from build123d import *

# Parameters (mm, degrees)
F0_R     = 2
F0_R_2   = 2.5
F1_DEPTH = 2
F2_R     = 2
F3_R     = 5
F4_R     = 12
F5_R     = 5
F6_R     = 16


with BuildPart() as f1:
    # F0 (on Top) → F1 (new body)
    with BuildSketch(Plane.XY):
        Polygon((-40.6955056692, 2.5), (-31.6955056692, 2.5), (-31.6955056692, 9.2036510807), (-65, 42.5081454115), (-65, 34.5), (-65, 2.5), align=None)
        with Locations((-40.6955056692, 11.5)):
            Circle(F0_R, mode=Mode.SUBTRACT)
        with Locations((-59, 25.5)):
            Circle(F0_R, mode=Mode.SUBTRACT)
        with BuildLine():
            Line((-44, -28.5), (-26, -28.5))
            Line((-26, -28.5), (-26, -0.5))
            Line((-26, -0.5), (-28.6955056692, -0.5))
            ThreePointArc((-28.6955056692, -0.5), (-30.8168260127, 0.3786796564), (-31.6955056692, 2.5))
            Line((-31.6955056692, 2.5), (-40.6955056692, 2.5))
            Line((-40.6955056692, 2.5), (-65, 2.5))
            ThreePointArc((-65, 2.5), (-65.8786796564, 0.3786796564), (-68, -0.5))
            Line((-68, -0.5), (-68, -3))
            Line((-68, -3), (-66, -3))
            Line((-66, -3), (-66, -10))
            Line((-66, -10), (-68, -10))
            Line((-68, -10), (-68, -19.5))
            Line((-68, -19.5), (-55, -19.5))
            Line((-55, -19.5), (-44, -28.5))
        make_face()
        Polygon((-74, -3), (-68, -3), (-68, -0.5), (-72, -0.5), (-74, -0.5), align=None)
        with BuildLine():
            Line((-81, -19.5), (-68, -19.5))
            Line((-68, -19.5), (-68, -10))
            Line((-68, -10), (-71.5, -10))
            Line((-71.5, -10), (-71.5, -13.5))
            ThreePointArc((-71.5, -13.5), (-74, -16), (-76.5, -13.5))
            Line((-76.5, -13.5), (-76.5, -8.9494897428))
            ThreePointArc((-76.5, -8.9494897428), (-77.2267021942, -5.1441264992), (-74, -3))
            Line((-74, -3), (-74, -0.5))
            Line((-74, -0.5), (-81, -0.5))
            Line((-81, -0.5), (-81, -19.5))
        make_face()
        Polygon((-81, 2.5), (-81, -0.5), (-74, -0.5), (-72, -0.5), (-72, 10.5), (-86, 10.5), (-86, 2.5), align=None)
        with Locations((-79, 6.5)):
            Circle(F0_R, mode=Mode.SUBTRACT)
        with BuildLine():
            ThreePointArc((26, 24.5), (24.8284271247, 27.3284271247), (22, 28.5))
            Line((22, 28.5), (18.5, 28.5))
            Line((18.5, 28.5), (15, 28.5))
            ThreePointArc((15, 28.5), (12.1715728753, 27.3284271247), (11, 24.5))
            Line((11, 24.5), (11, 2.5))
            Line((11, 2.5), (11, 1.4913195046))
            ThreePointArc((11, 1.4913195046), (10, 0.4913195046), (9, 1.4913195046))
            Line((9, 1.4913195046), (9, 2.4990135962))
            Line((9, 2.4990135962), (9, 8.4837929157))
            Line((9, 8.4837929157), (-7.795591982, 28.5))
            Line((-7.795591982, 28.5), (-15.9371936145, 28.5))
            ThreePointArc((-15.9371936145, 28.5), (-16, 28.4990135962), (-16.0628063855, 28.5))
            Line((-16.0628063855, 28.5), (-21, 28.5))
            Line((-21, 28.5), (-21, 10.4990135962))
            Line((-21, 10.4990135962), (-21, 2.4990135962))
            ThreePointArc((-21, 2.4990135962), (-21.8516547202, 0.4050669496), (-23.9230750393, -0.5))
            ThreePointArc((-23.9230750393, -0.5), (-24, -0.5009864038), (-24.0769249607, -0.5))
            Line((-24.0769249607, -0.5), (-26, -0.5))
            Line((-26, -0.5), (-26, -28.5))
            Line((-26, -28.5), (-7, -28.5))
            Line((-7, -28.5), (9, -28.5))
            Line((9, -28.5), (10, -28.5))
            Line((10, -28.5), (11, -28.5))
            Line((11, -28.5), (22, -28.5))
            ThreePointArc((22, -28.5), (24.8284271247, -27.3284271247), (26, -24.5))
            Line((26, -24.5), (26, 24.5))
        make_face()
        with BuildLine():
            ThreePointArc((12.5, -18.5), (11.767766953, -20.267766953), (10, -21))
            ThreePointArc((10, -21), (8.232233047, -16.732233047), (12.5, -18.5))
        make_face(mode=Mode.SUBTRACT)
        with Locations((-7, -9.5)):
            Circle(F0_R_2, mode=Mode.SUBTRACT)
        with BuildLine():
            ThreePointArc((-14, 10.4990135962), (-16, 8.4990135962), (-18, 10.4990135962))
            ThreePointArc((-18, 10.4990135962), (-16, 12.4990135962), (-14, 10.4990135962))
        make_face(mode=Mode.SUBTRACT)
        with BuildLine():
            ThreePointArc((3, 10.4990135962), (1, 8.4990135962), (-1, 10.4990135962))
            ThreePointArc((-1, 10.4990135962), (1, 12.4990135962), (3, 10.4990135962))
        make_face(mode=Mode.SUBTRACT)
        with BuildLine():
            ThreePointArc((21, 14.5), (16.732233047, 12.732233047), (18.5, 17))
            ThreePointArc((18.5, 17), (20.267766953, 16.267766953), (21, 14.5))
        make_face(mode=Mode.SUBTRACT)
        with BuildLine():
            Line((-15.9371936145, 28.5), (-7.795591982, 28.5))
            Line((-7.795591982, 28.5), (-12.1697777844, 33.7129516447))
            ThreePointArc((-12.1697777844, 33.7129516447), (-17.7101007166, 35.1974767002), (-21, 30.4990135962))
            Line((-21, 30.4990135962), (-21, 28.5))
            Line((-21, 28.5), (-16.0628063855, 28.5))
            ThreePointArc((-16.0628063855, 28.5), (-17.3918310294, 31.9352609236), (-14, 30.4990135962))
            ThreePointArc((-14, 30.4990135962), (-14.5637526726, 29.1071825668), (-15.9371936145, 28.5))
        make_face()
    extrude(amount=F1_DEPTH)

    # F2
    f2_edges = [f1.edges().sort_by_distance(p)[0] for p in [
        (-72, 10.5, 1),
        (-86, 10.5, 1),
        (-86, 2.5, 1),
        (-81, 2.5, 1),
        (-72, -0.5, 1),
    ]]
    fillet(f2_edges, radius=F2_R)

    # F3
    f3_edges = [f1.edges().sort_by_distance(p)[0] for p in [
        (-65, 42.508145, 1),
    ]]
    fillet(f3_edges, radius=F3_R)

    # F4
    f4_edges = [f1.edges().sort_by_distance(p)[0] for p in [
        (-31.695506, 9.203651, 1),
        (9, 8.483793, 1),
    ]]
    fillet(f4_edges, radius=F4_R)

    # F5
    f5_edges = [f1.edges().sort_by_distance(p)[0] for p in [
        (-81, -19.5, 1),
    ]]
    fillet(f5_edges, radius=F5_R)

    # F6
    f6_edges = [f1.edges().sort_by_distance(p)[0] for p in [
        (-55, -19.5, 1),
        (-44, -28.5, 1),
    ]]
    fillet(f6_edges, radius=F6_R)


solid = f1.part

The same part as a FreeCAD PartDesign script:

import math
import FreeCAD as App
import Part
import Sketcher
Q = App.Units.Quantity


def edges_at(feature, points):
    """Names of the edges that pass closest to the given points."""
    edges = feature.Shape.Edges
    near = lambda p: min(range(len(edges)), key=lambda i: edges[i].distToShape(Part.Vertex(*p))[0])
    return sorted({f"Edge{near(p) + 1}" for p in points})

doc = App.newDocument("Part")
body = doc.addObject("PartDesign::Body", "Body")

# Sketch on XY plane
sketch1 = body.newObject("Sketcher::SketchObject", "Sketch")
sketch1.AttachmentSupport = (doc.getObject("XY_Plane"), [""])
sketch1.MapMode = "FlatFace"
sketch1.addGeometry([
    Part.LineSegment(App.Vector(-31.7, 2.5, 0), App.Vector(-31.7, 9.2, 0)),  # 0
    Part.LineSegment(App.Vector(-31.7, 9.2, 0), App.Vector(-65, 42.51, 0)),  # 1
    Part.LineSegment(App.Vector(-65, 42.51, 0), App.Vector(-65, 2.5, 0)),  # 2
    Part.ArcOfCircle(Part.Circle(App.Vector(-68, 2.5, 0), App.Vector(0, 0, 1), 3), math.radians(-90), math.radians(0)),  # 3
    Part.LineSegment(App.Vector(-68, -0.5, 0), App.Vector(-72, -0.5, 0)),  # 4
    Part.LineSegment(App.Vector(-72, -0.5, 0), App.Vector(-72, 10.5, 0)),  # 5
    Part.LineSegment(App.Vector(-72, 10.5, 0), App.Vector(-86, 10.5, 0)),  # 6
    Part.LineSegment(App.Vector(-86, 10.5, 0), App.Vector(-86, 2.5, 0)),  # 7
    Part.LineSegment(App.Vector(-86, 2.5, 0), App.Vector(-81, 2.5, 0)),  # 8
    Part.LineSegment(App.Vector(-81, 2.5, 0), App.Vector(-81, -19.5, 0)),  # 9
    Part.LineSegment(App.Vector(-81, -19.5, 0), App.Vector(-55, -19.5, 0)),  # 10
    Part.LineSegment(App.Vector(-55, -19.5, 0), App.Vector(-44, -28.5, 0)),  # 11
    Part.LineSegment(App.Vector(-44, -28.5, 0), App.Vector(22, -28.5, 0)),  # 12
    Part.ArcOfCircle(Part.Circle(App.Vector(22, -24.5, 0), App.Vector(0, 0, 1), 4), math.radians(-90), math.radians(0)),  # 13
    Part.LineSegment(App.Vector(26, -24.5, 0), App.Vector(26, 24.5, 0)),  # 14
    Part.ArcOfCircle(Part.Circle(App.Vector(22, 24.5, 0), App.Vector(0, 0, 1), 4), math.radians(0), math.radians(90)),  # 15
    Part.LineSegment(App.Vector(22, 28.5, 0), App.Vector(15, 28.5, 0)),  # 16
    Part.ArcOfCircle(Part.Circle(App.Vector(15, 24.5, 0), App.Vector(0, 0, 1), 4), math.radians(90), math.radians(180)),  # 17
    Part.LineSegment(App.Vector(11, 24.5, 0), App.Vector(11, 1.49, 0)),  # 18
    Part.ArcOfCircle(Part.Circle(App.Vector(10, 1.49, 0), App.Vector(0, 0, 1), 1), math.radians(180), math.radians(360)),  # 19
    Part.LineSegment(App.Vector(9, 1.49, 0), App.Vector(9, 8.48, 0)),  # 20
    Part.LineSegment(App.Vector(9, 8.48, 0), App.Vector(-7.8, 28.5, 0)),  # 21
    Part.LineSegment(App.Vector(-7.8, 28.5, 0), App.Vector(-12.17, 33.71, 0)),  # 22
    Part.ArcOfCircle(Part.Circle(App.Vector(-16, 30.5, 0), App.Vector(0, 0, 1), 5), math.radians(40), math.radians(180)),  # 23
    Part.LineSegment(App.Vector(-21, 30.5, 0), App.Vector(-21, 2.5, 0)),  # 24
    Part.ArcOfCircle(Part.Circle(App.Vector(-24, 2.5, 0), App.Vector(0, 0, 1), 3), math.radians(-89), math.radians(0)),  # 25
    Part.ArcOfCircle(Part.Circle(App.Vector(-24, 2.5, 0), App.Vector(0, 0, 1), 3), math.radians(-91.47), math.radians(-88.53)),  # 26
    Part.LineSegment(App.Vector(-24.08, -0.5, 0), App.Vector(-28.7, -0.5, 0)),  # 27
    Part.ArcOfCircle(Part.Circle(App.Vector(-28.7, 2.5, 0), App.Vector(0, 0, 1), 3), math.radians(180), math.radians(270)),  # 28
    Part.ArcOfCircle(Part.Circle(App.Vector(-16, 30.5, 0), App.Vector(0, 0, 1), 2), math.radians(-91.8), math.radians(-88.2)),  # 29
    Part.ArcOfCircle(Part.Circle(App.Vector(-16, 30.5, 0), App.Vector(0, 0, 1), 2), math.radians(0), math.radians(268)),  # 30
    Part.ArcOfCircle(Part.Circle(App.Vector(-16, 30.5, 0), App.Vector(0, 0, 1), 2), math.radians(-88), math.radians(0)),  # 31
    Part.LineSegment(App.Vector(-74, -3, 0), App.Vector(-66, -3, 0)),  # 32
    Part.LineSegment(App.Vector(-66, -3, 0), App.Vector(-66, -10, 0)),  # 33
    Part.LineSegment(App.Vector(-66, -10, 0), App.Vector(-71.5, -10, 0)),  # 34
    Part.LineSegment(App.Vector(-71.5, -10, 0), App.Vector(-71.5, -13.5, 0)),  # 35
    Part.ArcOfCircle(Part.Circle(App.Vector(-74, -13.5, 0), App.Vector(0, 0, 1), 2.5), math.radians(180), math.radians(360)),  # 36
    Part.LineSegment(App.Vector(-76.5, -13.5, 0), App.Vector(-76.5, -8.95, 0)),  # 37
    Part.ArcOfCircle(Part.Circle(App.Vector(-74, -6.5, 0), App.Vector(0, 0, 1), 3.5), math.radians(90), math.radians(224)),  # 38
    Part.Circle(App.Vector(-7, -9.5, 0), App.Vector(0, 0, 1), 2.5),  # 39
    Part.ArcOfCircle(Part.Circle(App.Vector(10, -18.5, 0), App.Vector(0, 0, 1), 2.5), math.radians(0), math.radians(270)),  # 40
    Part.ArcOfCircle(Part.Circle(App.Vector(10, -18.5, 0), App.Vector(0, 0, 1), 2.5), math.radians(-90), math.radians(0)),  # 41
    Part.Circle(App.Vector(-79, 6.5, 0), App.Vector(0, 0, 1), 2),  # 42
    Part.Circle(App.Vector(-40.7, 11.5, 0), App.Vector(0, 0, 1), 2),  # 43
    Part.Circle(App.Vector(-59, 25.5, 0), App.Vector(0, 0, 1), 2),  # 44
    Part.Circle(App.Vector(-16, 10.5, 0), App.Vector(0, 0, 1), 2),  # 45
    Part.Circle(App.Vector(1, 10.5, 0), App.Vector(0, 0, 1), 2),  # 46
    Part.ArcOfCircle(Part.Circle(App.Vector(18.5, 14.5, 0), App.Vector(0, 0, 1), 2.5), math.radians(0), math.radians(90)),  # 47
    Part.ArcOfCircle(Part.Circle(App.Vector(18.5, 14.5, 0), App.Vector(0, 0, 1), 2.5), math.radians(90), math.radians(360)),  # 48
], False)
sketch1.addConstraint([
    Sketcher.Constraint("Coincident", 0, 2, 1, 1),
    Sketcher.Constraint("Coincident", 1, 2, 2, 1),
    Sketcher.Constraint("Tangent", 2, 2, 3, 2),
    Sketcher.Constraint("Tangent", 3, 1, 4, 1),
    Sketcher.Constraint("Coincident", 4, 2, 5, 1),
    Sketcher.Constraint("Coincident", 5, 2, 6, 1),
    Sketcher.Constraint("Coincident", 6, 2, 7, 1),
    Sketcher.Constraint("Coincident", 7, 2, 8, 1),
    Sketcher.Constraint("Coincident", 8, 2, 9, 1),
    Sketcher.Constraint("Coincident", 9, 2, 10, 1),
    Sketcher.Constraint("Coincident", 10, 2, 11, 1),
    Sketcher.Constraint("Coincident", 11, 2, 12, 1),
    Sketcher.Constraint("Tangent", 12, 2, 13, 1),
    Sketcher.Constraint("Tangent", 13, 2, 14, 1),
    Sketcher.Constraint("Tangent", 14, 2, 15, 1),
    Sketcher.Constraint("Tangent", 15, 2, 16, 1),
    Sketcher.Constraint("Tangent", 16, 2, 17, 1),
    Sketcher.Constraint("Tangent", 17, 2, 18, 1),
    Sketcher.Constraint("Tangent", 18, 2, 19, 2),
    Sketcher.Constraint("Tangent", 19, 1, 20, 1),
    Sketcher.Constraint("Coincident", 20, 2, 21, 1),
    Sketcher.Constraint("Coincident", 21, 2, 22, 1),
    Sketcher.Constraint("Tangent", 22, 2, 23, 1),
    Sketcher.Constraint("Tangent", 23, 2, 24, 1),
    Sketcher.Constraint("Tangent", 24, 2, 25, 2),
    Sketcher.Constraint("Tangent", 25, 1, 26, 2),
    Sketcher.Constraint("Coincident", 26, 1, 27, 1),
    Sketcher.Constraint("Tangent", 27, 2, 28, 2),
    Sketcher.Constraint("Tangent", 28, 1, 0, 1),
    Sketcher.Constraint("Tangent", 29, 1, 30, 2),
    Sketcher.Constraint("Tangent", 30, 1, 31, 2),
    Sketcher.Constraint("Tangent", 31, 1, 29, 2),
    Sketcher.Constraint("Coincident", 32, 2, 33, 1),
    Sketcher.Constraint("Coincident", 33, 2, 34, 1),
    Sketcher.Constraint("Coincident", 34, 2, 35, 1),
    Sketcher.Constraint("Tangent", 35, 2, 36, 2),
    Sketcher.Constraint("Tangent", 36, 1, 37, 1),
    Sketcher.Constraint("Coincident", 37, 2, 38, 2),
    Sketcher.Constraint("Tangent", 38, 1, 32, 1),
    Sketcher.Constraint("Tangent", 40, 1, 41, 2),
    Sketcher.Constraint("Coincident", 41, 1, 40, 2),
    Sketcher.Constraint("Tangent", 47, 1, 48, 2),
    Sketcher.Constraint("Coincident", 48, 1, 47, 2),
    Sketcher.Constraint("Vertical", 0),
    Sketcher.Constraint("Vertical", 2),
    Sketcher.Constraint("Horizontal", 4),
    Sketcher.Constraint("Vertical", 5),
    Sketcher.Constraint("Horizontal", 6),
    Sketcher.Constraint("Vertical", 7),
    Sketcher.Constraint("Horizontal", 8),
    Sketcher.Constraint("Vertical", 9),
    Sketcher.Constraint("Horizontal", 10),
    Sketcher.Constraint("Horizontal", 12),
    Sketcher.Constraint("Vertical", 14),
    Sketcher.Constraint("Horizontal", 16),
    Sketcher.Constraint("Vertical", 18),
    Sketcher.Constraint("Vertical", 20),
    Sketcher.Constraint("Vertical", 24),
    Sketcher.Constraint("Horizontal", 27),
    Sketcher.Constraint("Horizontal", 32),
    Sketcher.Constraint("Vertical", 33),
    Sketcher.Constraint("Horizontal", 34),
    Sketcher.Constraint("Vertical", 35),
    Sketcher.Constraint("Vertical", 37),
    Sketcher.Constraint("Coincident", 29, 3, 23, 3),
    Sketcher.Constraint("Equal", 13, 15),
    Sketcher.Constraint("Equal", 15, 17),
    Sketcher.Constraint("Equal", 3, 25),
    Sketcher.Constraint("Equal", 25, 26),
    Sketcher.Constraint("Equal", 26, 28),
    Sketcher.Constraint("Equal", 36, 39),
    Sketcher.Constraint("Equal", 39, 40),
    Sketcher.Constraint("Equal", 31, 42),
    Sketcher.Constraint("Equal", 42, 43),
    Sketcher.Constraint("Equal", 43, 44),
    Sketcher.Constraint("Equal", 44, 45),
    Sketcher.Constraint("Equal", 45, 46),
    Sketcher.Constraint("Equal", 41, 47),
    Sketcher.Constraint("Parallel", 21, 22),
    Sketcher.Constraint("Horizontal", 3, 3, 28, 3),
    Sketcher.Constraint("Horizontal", 45, 3, 46, 3),
    Sketcher.Constraint("Horizontal", 2, 2, 7, 2),
    Sketcher.Constraint("Horizontal", 16, 2, 21, 2),
    Sketcher.Constraint("Horizontal", 4, 2, 25, 1),
    Sketcher.Constraint("Horizontal", 21, 2, 29, 1),
    Sketcher.Constraint("Horizontal", 23, 2, 30, 1),
    Sketcher.Constraint("Horizontal", 29, 1, 31, 1),
    Sketcher.Constraint("Horizontal", 41, 3, 40, 1),
    Sketcher.Constraint("Horizontal", 48, 3, 47, 1),
    Sketcher.Constraint("Vertical", 36, 3, 38, 3),
    Sketcher.Constraint("Vertical", 19, 3, 40, 3),
    Sketcher.Constraint("Vertical", 31, 3, 45, 3),
    Sketcher.Constraint("Vertical", 40, 3, 41, 1),
    Sketcher.Constraint("Vertical", 47, 3, 48, 1),
    Sketcher.Constraint("Equal", 32, 7),
    Sketcher.Constraint("Equal", 16, 33),
    Sketcher.Constraint("Diameter", 39, Q("5 mm")),
    Sketcher.Constraint("Diameter", 42, Q("4 mm")),
    Sketcher.Constraint("Radius", 3, Q("3 mm")),
    Sketcher.Constraint("Radius", 13, Q("4 mm")),
    Sketcher.Constraint("Radius", 19, Q("1 mm")),
    Sketcher.Constraint("Radius", 23, Q("5 mm")),
    Sketcher.Constraint("Radius", 38, Q("3.5 mm")),
    Sketcher.Constraint("DistanceX", 4, 2, 4, 1, Q("4 mm")),
    Sketcher.Constraint("DistanceX", 6, 2, 6, 1, Q("14 mm")),
    Sketcher.Constraint("DistanceX", 8, 1, 8, 2, Q("5 mm")),
    Sketcher.Constraint("DistanceX", 10, 1, 10, 2, Q("26 mm")),
    Sketcher.Constraint("DistanceX", 12, 1, 12, 2, Q("66 mm")),
    Sketcher.Constraint("DistanceX", 16, 2, 16, 1, Q("7 mm")),
    Sketcher.Constraint("DistanceX", 32, 1, 32, 2, Q("8 mm")),
    Sketcher.Constraint("DistanceY", 9, 2, 9, 1, Q("22 mm")),
    Sketcher.Constraint("DistanceY", 14, 1, 14, 2, Q("49 mm")),
    Sketcher.Constraint("DistanceY", 24, 2, 24, 1, Q("28 mm")),
    Sketcher.Constraint("Angle", 1, Q("135 deg")),
    Sketcher.Constraint("Angle", 21, Q("130 deg")),
    Sketcher.Constraint("DistanceY", 35, 2, 35, 1, Q("3.5 mm")),
    Sketcher.Constraint("DistanceX", 3, 3, -1, 1, Q("68 mm")),
    Sketcher.Constraint("DistanceX", -1, 1, 13, 3, Q("22 mm")),
    Sketcher.Constraint("DistanceX", 23, 3, -1, 1, Q("16 mm")),
    Sketcher.Constraint("DistanceX", 36, 3, -1, 1, Q("74 mm")),
    Sketcher.Constraint("DistanceX", 39, 3, -1, 1, Q("7 mm")),
    Sketcher.Constraint("DistanceX", 42, 3, -1, 1, Q("79 mm")),
    Sketcher.Constraint("DistanceX", 44, 3, -1, 1, Q("59 mm")),
    Sketcher.Constraint("DistanceX", -1, 1, 46, 3, Q("1 mm")),
    Sketcher.Constraint("DistanceY", 32, 2, -1, 1, Q("3 mm")),
    Sketcher.Constraint("DistanceY", 41, 1, -1, 1, Q("21 mm")),
    Sketcher.Constraint("DistanceX", -1, 1, 47, 1, Q("21 mm")),
    Sketcher.Constraint("DistanceY", -1, 1, 48, 1, Q("17 mm")),
    Sketcher.Constraint("DistanceY", -1, 1, 3, 3, Q("2.5 mm")),
    Sketcher.Constraint("DistanceY", 13, 3, -1, 1, Q("24.5 mm")),
    Sketcher.Constraint("DistanceY", 39, 3, -1, 1, Q("9.5 mm")),
    Sketcher.Constraint("DistanceY", -1, 1, 42, 3, Q("6.5 mm")),
    Sketcher.Constraint("DistanceY", -1, 1, 43, 3, Q("11.5 mm")),
    Sketcher.Constraint("DistanceY", -1, 1, 44, 3, Q("25.5 mm")),
    Sketcher.Constraint("DistanceX", 27, 2, 27, 1, Q("4.618581 mm")),
    Sketcher.Constraint("DistanceY", 0, 1, 0, 2, Q("6.703651 mm")),
    Sketcher.Constraint("DistanceY", 18, 2, 18, 1, Q("23.00868 mm")),
    Sketcher.Constraint("DistanceY", 2, 2, 2, 1, Q("40.008145 mm")),
    Sketcher.Constraint("DistanceX", 43, 3, -1, 1, Q("40.695506 mm")),
    Sketcher.Constraint("DistanceY", -1, 1, 45, 3, Q("10.499014 mm")),
])
pad1 = body.newObject("PartDesign::Pad", "Pad")
pad1.Profile = sketch1
pad1.Length = 2
doc.recompute()

fillet = body.newObject("PartDesign::Fillet", "Fillet")
fillet.Base = (pad1, edges_at(pad1, [
    (-72, 10.5, 1),
    (-86, 10.5, 1),
    (-86, 2.5, 1),
    (-81, 2.5, 1),
    (-72, -0.5, 1),
]))
fillet.Radius = 2
doc.recompute()

fillet2 = body.newObject("PartDesign::Fillet", "Fillet001")
fillet2.Base = (fillet, edges_at(fillet, [(-65, 42.508, 1)]))
fillet2.Radius = 5
doc.recompute()

fillet3 = body.newObject("PartDesign::Fillet", "Fillet002")
fillet3.Base = (fillet2, edges_at(fillet2, [(-31.696, 9.204, 1), (9, 8.484, 1)]))
fillet3.Radius = 12
doc.recompute()

fillet4 = body.newObject("PartDesign::Fillet", "Fillet003")
fillet4.Base = (fillet3, edges_at(fillet3, [(-81, -19.5, 1)]))
fillet4.Radius = 5
doc.recompute()

fillet5 = body.newObject("PartDesign::Fillet", "Fillet004")
fillet5.Base = (fillet4, edges_at(fillet4, [(-55, -19.5, 1), (-44, -28.5, 1)]))
fillet5.Radius = 16

doc.recompute()
